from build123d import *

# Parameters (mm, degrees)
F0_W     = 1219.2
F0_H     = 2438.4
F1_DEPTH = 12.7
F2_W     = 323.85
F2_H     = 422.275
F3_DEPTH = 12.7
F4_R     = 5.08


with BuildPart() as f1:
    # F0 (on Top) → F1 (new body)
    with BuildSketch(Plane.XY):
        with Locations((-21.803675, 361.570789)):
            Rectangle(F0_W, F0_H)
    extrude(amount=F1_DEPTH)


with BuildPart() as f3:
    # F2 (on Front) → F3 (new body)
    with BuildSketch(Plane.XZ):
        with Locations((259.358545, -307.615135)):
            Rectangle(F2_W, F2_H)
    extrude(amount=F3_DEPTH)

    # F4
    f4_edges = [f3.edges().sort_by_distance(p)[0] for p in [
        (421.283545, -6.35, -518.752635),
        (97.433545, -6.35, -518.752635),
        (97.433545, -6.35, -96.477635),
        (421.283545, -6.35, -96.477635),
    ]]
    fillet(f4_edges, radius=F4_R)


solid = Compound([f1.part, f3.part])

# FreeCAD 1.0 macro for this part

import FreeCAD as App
import Part
import Sketcher

V = App.Vector
Q = App.Units.Quantity


def edges_at(feature, points):
    """Names of the edges that pass closest to the given points."""
    edges = feature.Shape.Edges
    near = lambda p: min(range(len(edges)), key=lambda i: edges[i].distToShape(Part.Vertex(*p))[0])
    return sorted({f"Edge{near(p) + 1}" for p in points})


def add_polygon(sketch, points):
    """Adds a closed chain of lines whose ends are joined by coincident constraints."""
    first, n = sketch.GeometryCount, len(points)
    for a, b in zip(points, points[1:] + points[:1]):
        sketch.addGeometry(Part.LineSegment(App.Vector(*a, 0), App.Vector(*b, 0)), False)
    for i in range(n):
        sketch.addConstraint(Sketcher.Constraint("Coincident", first + i, 2, first + (i + 1) % n, 1))

doc = App.newDocument("Part")
body = doc.addObject("PartDesign::Body", "Body")

# Sketch on XY plane
sketch1 = doc.addObject("Sketcher::SketchObject", "Sketch")
body.addObject(sketch1)
sketch1.AttachmentSupport = (doc.XY_Plane, [""])
sketch1.MapMode = "FlatFace"
add_polygon(sketch1, [(-631, 1581), (-631, -858), (588, -858), (588, 1581)])  # lines 0-3
sketch1.addConstraint([
    Sketcher.Constraint("Vertical", 0),
    Sketcher.Constraint("Horizontal", 1),
    Sketcher.Constraint("Vertical", 2),
    Sketcher.Constraint("Horizontal", 3),
    Sketcher.Constraint("DistanceX", 1, 1, 1, 2, Q("48 in")),
    Sketcher.Constraint("DistanceY", 0, 2, 0, 1, Q("96 in")),
    Sketcher.Constraint("DistanceY", 0, 2, -1, 1, Q("857.629211 mm")),
    Sketcher.Constraint("DistanceX", 0, 2, -1, 1, Q("631.403675 mm")),
])
pad1 = doc.addObject("PartDesign::Pad", "Pad")
body.addObject(pad1)
pad1.Profile = sketch1
pad1.Length = Q("0.5 in")
body2 = doc.addObject("PartDesign::Body", "Body001")

# Sketch on XZ plane
sketch2 = doc.addObject("Sketcher::SketchObject", "Sketch001")
body2.addObject(sketch2)
sketch2.AttachmentSupport = (doc.getObject("XZ_Plane001"), [""])
sketch2.MapMode = "FlatFace"
add_polygon(sketch2, [(97, -96), (97, -519), (421, -519), (421, -96)])  # lines 0-3
sketch2.addConstraint([
    Sketcher.Constraint("Vertical", 0),
    Sketcher.Constraint("Horizontal", 1),
    Sketcher.Constraint("Vertical", 2),
    Sketcher.Constraint("Horizontal", 3),
    Sketcher.Constraint("DistanceX", 1, 1, 1, 2, Q("12.75 in")),
    Sketcher.Constraint("DistanceY", 0, 2, 0, 1, Q("16.625 in")),
    Sketcher.Constraint("DistanceX", -1, 1, 0, 2, Q("97.433545 mm")),
    Sketcher.Constraint("DistanceY", 0, 2, -1, 1, Q("518.752635 mm")),
])
pad2 = doc.addObject("PartDesign::Pad", "Pad001")
body2.addObject(pad2)
pad2.Profile = sketch2
pad2.Length = Q("0.5 in")
doc.recompute()

fillet = doc.addObject("PartDesign::Fillet", "Fillet")
body2.addObject(fillet)
fillet.Base = (pad2, edges_at(pad2, [
    (421.284, -6.35, -518.753),
    (97.434, -6.35, -518.753),
    (97.434, -6.35, -96.478),
    (421.284, -6.35, -96.478),
]))
fillet.Radius = Q("0.2 in")

doc.recompute()
